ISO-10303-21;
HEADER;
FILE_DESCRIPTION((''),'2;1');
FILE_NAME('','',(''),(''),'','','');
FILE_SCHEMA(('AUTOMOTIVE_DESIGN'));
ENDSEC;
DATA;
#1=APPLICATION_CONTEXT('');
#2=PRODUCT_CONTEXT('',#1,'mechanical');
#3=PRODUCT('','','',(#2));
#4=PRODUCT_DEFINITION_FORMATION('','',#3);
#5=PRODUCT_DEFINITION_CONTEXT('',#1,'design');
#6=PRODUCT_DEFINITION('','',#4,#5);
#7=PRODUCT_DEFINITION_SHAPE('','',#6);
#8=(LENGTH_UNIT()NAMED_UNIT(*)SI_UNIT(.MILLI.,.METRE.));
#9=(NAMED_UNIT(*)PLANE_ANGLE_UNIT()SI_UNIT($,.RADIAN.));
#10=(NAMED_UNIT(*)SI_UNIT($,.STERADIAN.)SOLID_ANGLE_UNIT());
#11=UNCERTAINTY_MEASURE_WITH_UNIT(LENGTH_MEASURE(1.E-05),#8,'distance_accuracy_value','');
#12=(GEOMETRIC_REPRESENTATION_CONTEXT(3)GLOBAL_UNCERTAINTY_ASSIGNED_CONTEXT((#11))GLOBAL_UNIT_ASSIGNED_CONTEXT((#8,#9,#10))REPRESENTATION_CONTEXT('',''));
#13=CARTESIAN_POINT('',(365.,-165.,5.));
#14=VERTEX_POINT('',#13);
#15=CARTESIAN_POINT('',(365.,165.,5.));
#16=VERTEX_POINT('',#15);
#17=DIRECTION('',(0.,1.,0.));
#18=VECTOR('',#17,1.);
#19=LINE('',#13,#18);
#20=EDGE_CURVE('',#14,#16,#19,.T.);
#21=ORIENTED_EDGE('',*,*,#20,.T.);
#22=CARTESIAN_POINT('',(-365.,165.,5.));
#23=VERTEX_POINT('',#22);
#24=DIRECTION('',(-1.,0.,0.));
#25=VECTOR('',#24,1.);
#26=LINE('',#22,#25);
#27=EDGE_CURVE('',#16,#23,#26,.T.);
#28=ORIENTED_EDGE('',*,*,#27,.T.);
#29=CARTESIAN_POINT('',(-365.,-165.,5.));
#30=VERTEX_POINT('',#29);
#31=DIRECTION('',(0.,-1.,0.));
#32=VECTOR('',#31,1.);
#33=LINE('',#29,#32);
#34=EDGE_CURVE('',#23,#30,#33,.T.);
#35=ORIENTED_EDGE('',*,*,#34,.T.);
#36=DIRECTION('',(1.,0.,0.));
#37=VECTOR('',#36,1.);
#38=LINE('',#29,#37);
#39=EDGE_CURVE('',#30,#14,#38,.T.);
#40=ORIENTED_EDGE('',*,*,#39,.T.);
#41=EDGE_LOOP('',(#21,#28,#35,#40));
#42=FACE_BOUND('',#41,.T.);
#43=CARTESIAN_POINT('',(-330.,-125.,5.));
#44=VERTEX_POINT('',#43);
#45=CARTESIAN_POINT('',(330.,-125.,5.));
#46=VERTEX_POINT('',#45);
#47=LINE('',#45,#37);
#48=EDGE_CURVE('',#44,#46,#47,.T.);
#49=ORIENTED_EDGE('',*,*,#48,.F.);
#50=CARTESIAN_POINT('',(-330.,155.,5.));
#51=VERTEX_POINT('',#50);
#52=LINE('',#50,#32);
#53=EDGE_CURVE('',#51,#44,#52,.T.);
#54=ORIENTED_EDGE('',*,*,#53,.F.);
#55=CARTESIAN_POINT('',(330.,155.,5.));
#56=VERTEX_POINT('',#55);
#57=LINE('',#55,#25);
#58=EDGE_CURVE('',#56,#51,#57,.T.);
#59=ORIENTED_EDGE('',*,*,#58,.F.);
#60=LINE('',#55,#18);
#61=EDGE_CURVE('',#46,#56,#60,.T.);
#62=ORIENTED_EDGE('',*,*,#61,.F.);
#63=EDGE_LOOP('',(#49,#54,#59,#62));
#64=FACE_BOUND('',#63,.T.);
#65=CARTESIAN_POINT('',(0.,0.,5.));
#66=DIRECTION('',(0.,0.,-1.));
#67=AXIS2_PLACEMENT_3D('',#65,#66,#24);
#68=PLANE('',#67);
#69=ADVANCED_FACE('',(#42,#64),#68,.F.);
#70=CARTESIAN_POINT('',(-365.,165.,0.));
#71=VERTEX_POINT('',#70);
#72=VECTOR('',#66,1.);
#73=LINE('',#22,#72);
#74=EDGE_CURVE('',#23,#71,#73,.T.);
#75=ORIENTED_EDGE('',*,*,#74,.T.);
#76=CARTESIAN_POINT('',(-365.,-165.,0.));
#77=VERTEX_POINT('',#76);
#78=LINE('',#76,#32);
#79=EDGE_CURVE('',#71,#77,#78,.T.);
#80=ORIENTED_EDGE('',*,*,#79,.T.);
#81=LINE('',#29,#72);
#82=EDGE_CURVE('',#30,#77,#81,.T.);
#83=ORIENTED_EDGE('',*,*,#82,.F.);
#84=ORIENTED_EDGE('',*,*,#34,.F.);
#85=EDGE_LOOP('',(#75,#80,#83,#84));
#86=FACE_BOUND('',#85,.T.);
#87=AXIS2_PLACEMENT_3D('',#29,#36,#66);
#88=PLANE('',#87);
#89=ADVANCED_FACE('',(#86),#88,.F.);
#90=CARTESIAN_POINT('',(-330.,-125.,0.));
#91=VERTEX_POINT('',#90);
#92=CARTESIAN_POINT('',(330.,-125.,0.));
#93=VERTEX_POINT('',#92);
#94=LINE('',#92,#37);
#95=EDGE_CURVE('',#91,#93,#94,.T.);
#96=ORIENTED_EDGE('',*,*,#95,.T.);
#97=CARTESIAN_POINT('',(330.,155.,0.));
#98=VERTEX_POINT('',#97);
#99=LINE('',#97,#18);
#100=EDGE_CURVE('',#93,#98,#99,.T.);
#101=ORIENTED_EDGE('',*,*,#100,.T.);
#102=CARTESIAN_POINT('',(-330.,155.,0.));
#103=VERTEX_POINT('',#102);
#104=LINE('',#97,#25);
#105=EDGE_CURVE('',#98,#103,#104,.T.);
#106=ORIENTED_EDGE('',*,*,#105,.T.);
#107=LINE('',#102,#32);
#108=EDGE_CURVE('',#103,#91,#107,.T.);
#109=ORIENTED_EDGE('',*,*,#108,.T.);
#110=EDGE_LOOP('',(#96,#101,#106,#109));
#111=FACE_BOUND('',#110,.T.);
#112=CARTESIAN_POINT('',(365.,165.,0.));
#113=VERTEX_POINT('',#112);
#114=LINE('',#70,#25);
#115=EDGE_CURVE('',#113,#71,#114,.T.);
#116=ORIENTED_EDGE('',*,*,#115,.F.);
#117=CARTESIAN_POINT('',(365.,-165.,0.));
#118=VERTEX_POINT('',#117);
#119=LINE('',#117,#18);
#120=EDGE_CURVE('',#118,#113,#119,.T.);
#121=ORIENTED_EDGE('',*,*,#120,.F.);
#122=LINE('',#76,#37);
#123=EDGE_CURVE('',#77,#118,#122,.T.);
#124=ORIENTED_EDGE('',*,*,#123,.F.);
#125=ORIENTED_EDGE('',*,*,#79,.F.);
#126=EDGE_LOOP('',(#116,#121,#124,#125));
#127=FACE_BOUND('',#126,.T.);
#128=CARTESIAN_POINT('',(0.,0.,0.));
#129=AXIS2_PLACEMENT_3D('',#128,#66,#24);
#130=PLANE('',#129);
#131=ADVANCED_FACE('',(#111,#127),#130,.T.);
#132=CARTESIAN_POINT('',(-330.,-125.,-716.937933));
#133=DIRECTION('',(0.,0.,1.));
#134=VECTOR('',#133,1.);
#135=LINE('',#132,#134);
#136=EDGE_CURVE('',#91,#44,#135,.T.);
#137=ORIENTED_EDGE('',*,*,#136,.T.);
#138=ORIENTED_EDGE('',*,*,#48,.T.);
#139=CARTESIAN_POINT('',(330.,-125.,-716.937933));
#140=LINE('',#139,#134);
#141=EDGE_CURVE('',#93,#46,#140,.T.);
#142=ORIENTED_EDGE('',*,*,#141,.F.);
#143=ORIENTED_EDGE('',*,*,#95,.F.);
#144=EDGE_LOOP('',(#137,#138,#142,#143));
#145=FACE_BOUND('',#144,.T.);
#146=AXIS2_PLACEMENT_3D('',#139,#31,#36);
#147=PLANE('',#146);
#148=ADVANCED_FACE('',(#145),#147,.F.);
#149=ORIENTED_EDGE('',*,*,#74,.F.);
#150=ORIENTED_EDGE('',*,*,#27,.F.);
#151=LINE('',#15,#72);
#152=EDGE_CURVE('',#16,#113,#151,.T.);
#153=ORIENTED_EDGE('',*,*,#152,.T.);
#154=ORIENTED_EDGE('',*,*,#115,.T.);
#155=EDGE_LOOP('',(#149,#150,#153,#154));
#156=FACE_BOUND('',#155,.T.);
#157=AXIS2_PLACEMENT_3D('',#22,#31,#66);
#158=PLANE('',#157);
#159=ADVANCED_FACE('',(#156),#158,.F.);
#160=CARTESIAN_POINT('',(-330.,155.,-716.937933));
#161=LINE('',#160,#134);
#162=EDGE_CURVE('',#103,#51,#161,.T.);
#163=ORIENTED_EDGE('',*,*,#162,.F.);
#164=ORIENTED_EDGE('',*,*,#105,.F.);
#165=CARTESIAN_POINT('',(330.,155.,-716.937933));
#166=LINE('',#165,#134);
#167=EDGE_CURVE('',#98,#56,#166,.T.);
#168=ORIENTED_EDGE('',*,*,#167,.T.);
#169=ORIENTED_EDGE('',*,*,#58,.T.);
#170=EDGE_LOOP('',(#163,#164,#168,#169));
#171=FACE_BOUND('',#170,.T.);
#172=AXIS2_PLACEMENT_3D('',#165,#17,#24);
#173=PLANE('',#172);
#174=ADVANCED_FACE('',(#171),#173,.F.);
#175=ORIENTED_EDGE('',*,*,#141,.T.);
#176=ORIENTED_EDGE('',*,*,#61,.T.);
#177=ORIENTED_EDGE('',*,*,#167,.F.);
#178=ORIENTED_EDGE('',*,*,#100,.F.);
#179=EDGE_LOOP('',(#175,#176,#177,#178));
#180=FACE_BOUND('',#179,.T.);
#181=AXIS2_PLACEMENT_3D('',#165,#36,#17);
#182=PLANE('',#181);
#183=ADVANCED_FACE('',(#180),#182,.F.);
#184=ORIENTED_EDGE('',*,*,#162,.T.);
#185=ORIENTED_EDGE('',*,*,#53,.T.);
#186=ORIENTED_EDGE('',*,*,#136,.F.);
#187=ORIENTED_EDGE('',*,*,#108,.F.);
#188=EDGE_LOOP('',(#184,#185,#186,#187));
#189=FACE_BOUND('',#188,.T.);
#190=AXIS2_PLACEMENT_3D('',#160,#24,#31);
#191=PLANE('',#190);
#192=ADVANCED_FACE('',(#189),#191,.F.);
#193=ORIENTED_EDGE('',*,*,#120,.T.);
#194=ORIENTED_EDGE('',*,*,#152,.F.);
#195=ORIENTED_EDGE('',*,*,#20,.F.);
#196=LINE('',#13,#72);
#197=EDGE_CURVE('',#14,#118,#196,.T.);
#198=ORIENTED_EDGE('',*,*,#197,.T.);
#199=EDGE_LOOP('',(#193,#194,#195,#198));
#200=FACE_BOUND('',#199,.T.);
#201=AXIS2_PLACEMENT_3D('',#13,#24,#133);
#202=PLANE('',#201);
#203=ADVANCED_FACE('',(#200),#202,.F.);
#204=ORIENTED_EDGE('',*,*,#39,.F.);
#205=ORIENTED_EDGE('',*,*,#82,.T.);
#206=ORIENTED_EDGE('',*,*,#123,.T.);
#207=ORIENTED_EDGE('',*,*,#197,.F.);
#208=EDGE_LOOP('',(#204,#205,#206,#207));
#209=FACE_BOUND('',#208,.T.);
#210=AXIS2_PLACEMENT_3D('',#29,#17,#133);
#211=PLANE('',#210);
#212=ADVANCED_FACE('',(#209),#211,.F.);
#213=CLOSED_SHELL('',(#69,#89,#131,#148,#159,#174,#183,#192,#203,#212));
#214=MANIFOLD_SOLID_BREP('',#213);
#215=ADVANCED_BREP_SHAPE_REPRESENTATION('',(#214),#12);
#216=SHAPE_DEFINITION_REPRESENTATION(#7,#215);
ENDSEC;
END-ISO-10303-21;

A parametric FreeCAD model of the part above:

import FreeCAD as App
import Part
import Sketcher
from FreeCAD import Vector


def add_polygon(sketch, points):
    """Adds a closed chain of lines whose ends are joined by coincident constraints."""
    first, n = sketch.GeometryCount, len(points)
    for a, b in zip(points, points[1:] + points[:1]):
        sketch.addGeometry(Part.LineSegment(App.Vector(*a, 0), App.Vector(*b, 0)), False)
    for i in range(n):
        sketch.addConstraint(Sketcher.Constraint("Coincident", first + i, 2, first + (i + 1) % n, 1))

doc = App.newDocument("Part")
body = doc.addObject("PartDesign::Body", "Body")

# Sketch on XY plane
sketch1 = body.newObject("Sketcher::SketchObject", "Sketch")
sketch1.AttachmentSupport = (doc.getObject("XY_Plane"), [""])
sketch1.MapMode = "FlatFace"
add_polygon(sketch1, [(-365, 165), (-365, -165), (365, -165), (365, 165)])  # lines 0-3
sketch1.addConstraint([
    Sketcher.Constraint("Vertical", 0),
    Sketcher.Constraint("Horizontal", 1),
    Sketcher.Constraint("Vertical", 2),
    Sketcher.Constraint("Horizontal", 3),
    Sketcher.Constraint("Symmetric", 0, 2, 2, 2, -1, 1),
    Sketcher.Constraint("DistanceX", 1, 1, 1, 2, 730.0),
    Sketcher.Constraint("DistanceY", 0, 2, 0, 1, 330.0),
])
pad1 = body.newObject("PartDesign::Pad", "Pad")
pad1.Profile = sketch1
pad1.Length = 5

# Sketch on XY plane
sketch2 = body.newObject("Sketcher::SketchObject", "Sketch001")
sketch2.AttachmentSupport = (doc.getObject("XY_Plane"), [""])
sketch2.MapMode = "FlatFace"
sketch2.AttachmentOffset = App.Placement(Vector(0, 0, 5), App.Rotation())
add_polygon(sketch2, [(-330, 155), (-330, -125), (330, -125), (330, 155)])  # lines 0-3
sketch2.addConstraint([
    Sketcher.Constraint("Vertical", 0),
    Sketcher.Constraint("Horizontal", 1),
    Sketcher.Constraint("Vertical", 2),
    Sketcher.Constraint("Horizontal", 3),
    Sketcher.Constraint("DistanceX", 1, 1, 1, 2, 660.0),
    Sketcher.Constraint("DistanceY", 0, 2, 0, 1, 280.0),
    Sketcher.Constraint("DistanceX", 0, 2, -1, 1, 330.0),
    Sketcher.Constraint("DistanceY", 0, 2, -1, 1, 125.0),
])
pocket1 = body.newObject("PartDesign::Pocket", "Pocket")
pocket1.Profile = sketch2
pocket1.Length = 5

doc.recompute()
